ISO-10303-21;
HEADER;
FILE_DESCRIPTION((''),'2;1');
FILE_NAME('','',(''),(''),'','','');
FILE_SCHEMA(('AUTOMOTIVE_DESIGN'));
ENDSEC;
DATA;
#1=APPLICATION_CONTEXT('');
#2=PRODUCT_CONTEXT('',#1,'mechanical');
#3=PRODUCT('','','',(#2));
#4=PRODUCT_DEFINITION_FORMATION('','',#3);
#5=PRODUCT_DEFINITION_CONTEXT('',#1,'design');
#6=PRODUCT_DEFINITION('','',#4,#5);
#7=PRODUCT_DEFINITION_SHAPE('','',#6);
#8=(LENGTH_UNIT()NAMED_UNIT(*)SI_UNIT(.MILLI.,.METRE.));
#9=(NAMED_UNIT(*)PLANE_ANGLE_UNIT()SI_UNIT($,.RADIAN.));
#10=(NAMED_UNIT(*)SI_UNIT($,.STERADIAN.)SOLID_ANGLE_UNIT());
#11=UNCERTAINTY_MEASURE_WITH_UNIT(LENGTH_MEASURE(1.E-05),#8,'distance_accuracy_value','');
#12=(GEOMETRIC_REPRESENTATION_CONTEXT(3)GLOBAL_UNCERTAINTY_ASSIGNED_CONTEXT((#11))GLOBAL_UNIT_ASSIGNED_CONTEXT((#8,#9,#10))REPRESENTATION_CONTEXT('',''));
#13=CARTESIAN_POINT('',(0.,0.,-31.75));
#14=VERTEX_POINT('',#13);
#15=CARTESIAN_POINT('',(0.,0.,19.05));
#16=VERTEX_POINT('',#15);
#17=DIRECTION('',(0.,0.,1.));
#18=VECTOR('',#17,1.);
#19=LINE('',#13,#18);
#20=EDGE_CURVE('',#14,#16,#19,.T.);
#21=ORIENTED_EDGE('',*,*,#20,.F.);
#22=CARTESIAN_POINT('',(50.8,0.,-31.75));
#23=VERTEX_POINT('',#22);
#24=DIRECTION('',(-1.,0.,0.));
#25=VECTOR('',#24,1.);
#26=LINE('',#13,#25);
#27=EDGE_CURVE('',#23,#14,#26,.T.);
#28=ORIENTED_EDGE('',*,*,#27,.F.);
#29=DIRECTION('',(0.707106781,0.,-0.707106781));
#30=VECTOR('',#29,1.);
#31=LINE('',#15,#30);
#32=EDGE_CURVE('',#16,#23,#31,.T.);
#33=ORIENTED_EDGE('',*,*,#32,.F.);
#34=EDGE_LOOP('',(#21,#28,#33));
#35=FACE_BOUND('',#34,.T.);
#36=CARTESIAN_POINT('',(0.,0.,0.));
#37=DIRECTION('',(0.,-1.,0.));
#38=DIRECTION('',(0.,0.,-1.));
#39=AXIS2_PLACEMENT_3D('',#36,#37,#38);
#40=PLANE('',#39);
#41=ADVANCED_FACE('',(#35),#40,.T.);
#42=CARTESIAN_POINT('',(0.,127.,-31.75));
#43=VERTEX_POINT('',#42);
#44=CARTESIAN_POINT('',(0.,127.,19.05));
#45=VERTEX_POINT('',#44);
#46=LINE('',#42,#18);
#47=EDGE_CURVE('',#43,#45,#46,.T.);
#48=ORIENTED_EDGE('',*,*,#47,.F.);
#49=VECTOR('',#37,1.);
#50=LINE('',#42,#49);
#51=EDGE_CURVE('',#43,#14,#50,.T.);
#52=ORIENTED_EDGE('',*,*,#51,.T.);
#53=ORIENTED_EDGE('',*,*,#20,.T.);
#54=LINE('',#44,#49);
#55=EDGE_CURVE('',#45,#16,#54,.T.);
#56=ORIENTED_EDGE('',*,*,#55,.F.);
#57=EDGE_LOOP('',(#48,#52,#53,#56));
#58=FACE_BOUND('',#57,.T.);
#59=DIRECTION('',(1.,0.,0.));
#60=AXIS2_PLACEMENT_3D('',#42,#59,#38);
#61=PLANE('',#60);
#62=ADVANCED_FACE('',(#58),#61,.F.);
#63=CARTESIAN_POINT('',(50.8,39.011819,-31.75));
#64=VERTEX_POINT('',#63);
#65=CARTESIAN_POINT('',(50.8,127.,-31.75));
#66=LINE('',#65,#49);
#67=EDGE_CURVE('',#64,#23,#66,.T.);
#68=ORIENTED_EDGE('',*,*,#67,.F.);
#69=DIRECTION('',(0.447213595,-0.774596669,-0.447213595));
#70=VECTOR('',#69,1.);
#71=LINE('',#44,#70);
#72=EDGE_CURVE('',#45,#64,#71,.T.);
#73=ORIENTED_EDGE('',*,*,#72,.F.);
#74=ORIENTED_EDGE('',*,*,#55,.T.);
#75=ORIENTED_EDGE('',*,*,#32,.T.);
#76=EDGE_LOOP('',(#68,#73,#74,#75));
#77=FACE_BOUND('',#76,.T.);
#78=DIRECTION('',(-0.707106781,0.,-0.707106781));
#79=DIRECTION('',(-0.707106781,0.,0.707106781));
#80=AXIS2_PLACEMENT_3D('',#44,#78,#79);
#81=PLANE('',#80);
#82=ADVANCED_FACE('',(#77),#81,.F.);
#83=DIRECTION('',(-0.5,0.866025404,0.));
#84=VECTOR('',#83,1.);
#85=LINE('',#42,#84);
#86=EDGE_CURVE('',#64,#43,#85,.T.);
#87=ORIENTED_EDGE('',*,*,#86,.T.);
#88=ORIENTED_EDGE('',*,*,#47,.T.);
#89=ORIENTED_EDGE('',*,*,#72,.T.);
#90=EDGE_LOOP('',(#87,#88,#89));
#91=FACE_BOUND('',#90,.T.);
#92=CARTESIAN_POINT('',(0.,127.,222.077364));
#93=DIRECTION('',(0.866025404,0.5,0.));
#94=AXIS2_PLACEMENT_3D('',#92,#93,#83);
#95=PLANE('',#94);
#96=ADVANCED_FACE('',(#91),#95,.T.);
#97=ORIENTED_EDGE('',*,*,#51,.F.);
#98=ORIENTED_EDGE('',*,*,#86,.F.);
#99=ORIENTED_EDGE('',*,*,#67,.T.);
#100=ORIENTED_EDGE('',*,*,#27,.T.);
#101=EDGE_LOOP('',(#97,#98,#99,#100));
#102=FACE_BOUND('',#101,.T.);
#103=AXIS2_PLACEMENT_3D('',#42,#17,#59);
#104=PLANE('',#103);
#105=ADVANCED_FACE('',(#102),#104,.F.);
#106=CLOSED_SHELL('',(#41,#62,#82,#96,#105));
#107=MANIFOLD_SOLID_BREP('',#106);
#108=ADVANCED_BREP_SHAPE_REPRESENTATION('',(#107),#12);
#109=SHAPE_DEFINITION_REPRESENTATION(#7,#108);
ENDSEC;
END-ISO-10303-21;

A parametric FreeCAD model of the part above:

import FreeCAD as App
import Part
import Sketcher
Q = App.Units.Quantity

doc = App.newDocument("Part")
body = doc.addObject("PartDesign::Body", "Body")

sketch1 = body.newObject("Sketcher::SketchObject", "Sketch")
sketch1.AttachmentSupport = (doc.getObject("XZ_Plane"), [""])
sketch1.MapMode = "FlatFace"
sketch1.addGeometry([
    Part.LineSegment(App.Vector(0, -31.75, 0), App.Vector(0, 19.05, 0)),
    Part.LineSegment(App.Vector(0, 19.05, 0), App.Vector(50.8, -31.75, 0)),
    Part.LineSegment(App.Vector(50.8, -31.75, 0), App.Vector(0, -31.75, 0)),
], False)
sketch1.addConstraint([
    Sketcher.Constraint("Coincident", 0, 2, 1, 1),
    Sketcher.Constraint("Coincident", 1, 2, 2, 1),
    Sketcher.Constraint("Coincident", 2, 2, 0, 1),
    Sketcher.Constraint("Vertical", 0),
    Sketcher.Constraint("Horizontal", 2),
    Sketcher.Constraint("PointOnObject", 0, 2, -2),
    Sketcher.Constraint("Equal", 2, 0),
    Sketcher.Constraint("DistanceX", 2, 2, 2, 1, Q("2 in")),
    Sketcher.Constraint("DistanceY", -1, 1, 0, 2, Q("0.75 in")),
])
pad1 = body.newObject("PartDesign::Pad", "Pad")
pad1.Profile = sketch1
pad1.Length = Q("5 in")
pad1.Reversed = True

sketch2 = body.newObject("Sketcher::SketchObject", "Sketch001")
sketch2.AttachmentSupport = (doc.getObject("XY_Plane"), [""])
sketch2.MapMode = "FlatFace"
sketch2.addGeometry([
    Part.LineSegment(App.Vector(-141.783186, 372.575682, 0), App.Vector(0, 127, 0)),
    Part.LineSegment(App.Vector(0, 127, 0), App.Vector(50.8, 39.011819, 0)),
    Part.LineSegment(App.Vector(50.8, 39.011819, 0), App.Vector(192.583186, -206.563863, 0)),
    Part.LineSegment(App.Vector(192.583186, -206.563863, 0), App.Vector(683.73455, 77.002509, 0)),
    Part.LineSegment(App.Vector(683.73455, 77.002509, 0), App.Vector(349.368178, 656.142054, 0)),
    Part.LineSegment(App.Vector(349.368178, 656.142054, 0), App.Vector(-141.783186, 372.575682, 0)),
], False)
sketch2.addConstraint([
    Sketcher.Constraint("Coincident", 0, 2, 1, 1),
    Sketcher.Constraint("Coincident", 1, 2, 2, 1),
    Sketcher.Constraint("Coincident", 2, 2, 3, 1),
    Sketcher.Constraint("Coincident", 3, 2, 4, 1),
    Sketcher.Constraint("Coincident", 4, 2, 5, 1),
    Sketcher.Constraint("Coincident", 5, 2, 0, 1),
    Sketcher.Constraint("PointOnObject", 0, 2, -2),
    Sketcher.Constraint("Parallel", 0, 1),
    Sketcher.Constraint("Parallel", 1, 2),
    Sketcher.Constraint("Perpendicular", 2, 3),
    Sketcher.Constraint("Perpendicular", 3, 4),
    Sketcher.Constraint("Perpendicular", 4, 5),
    Sketcher.Constraint("Equal", 0, 2),
    Sketcher.Constraint("Distance", 1, Q("4 in")),
    Sketcher.Constraint("DistanceY", -1, 1, 0, 2, Q("5 in")),
    Sketcher.Constraint("DistanceX", -1, 1, 1, 2, Q("2 in")),
    Sketcher.Constraint("DistanceY", 2, 2, 4, 2, Q("33.9647999 in")),
    Sketcher.Constraint("DistanceX", -1, 1, 3, 2, 683.73455),
])
pocket1 = body.newObject("PartDesign::Pocket", "Pocket")
pocket1.Profile = sketch2
pocket1.Type = "ThroughAll"
pocket1.Midplane = True

doc.recompute()
